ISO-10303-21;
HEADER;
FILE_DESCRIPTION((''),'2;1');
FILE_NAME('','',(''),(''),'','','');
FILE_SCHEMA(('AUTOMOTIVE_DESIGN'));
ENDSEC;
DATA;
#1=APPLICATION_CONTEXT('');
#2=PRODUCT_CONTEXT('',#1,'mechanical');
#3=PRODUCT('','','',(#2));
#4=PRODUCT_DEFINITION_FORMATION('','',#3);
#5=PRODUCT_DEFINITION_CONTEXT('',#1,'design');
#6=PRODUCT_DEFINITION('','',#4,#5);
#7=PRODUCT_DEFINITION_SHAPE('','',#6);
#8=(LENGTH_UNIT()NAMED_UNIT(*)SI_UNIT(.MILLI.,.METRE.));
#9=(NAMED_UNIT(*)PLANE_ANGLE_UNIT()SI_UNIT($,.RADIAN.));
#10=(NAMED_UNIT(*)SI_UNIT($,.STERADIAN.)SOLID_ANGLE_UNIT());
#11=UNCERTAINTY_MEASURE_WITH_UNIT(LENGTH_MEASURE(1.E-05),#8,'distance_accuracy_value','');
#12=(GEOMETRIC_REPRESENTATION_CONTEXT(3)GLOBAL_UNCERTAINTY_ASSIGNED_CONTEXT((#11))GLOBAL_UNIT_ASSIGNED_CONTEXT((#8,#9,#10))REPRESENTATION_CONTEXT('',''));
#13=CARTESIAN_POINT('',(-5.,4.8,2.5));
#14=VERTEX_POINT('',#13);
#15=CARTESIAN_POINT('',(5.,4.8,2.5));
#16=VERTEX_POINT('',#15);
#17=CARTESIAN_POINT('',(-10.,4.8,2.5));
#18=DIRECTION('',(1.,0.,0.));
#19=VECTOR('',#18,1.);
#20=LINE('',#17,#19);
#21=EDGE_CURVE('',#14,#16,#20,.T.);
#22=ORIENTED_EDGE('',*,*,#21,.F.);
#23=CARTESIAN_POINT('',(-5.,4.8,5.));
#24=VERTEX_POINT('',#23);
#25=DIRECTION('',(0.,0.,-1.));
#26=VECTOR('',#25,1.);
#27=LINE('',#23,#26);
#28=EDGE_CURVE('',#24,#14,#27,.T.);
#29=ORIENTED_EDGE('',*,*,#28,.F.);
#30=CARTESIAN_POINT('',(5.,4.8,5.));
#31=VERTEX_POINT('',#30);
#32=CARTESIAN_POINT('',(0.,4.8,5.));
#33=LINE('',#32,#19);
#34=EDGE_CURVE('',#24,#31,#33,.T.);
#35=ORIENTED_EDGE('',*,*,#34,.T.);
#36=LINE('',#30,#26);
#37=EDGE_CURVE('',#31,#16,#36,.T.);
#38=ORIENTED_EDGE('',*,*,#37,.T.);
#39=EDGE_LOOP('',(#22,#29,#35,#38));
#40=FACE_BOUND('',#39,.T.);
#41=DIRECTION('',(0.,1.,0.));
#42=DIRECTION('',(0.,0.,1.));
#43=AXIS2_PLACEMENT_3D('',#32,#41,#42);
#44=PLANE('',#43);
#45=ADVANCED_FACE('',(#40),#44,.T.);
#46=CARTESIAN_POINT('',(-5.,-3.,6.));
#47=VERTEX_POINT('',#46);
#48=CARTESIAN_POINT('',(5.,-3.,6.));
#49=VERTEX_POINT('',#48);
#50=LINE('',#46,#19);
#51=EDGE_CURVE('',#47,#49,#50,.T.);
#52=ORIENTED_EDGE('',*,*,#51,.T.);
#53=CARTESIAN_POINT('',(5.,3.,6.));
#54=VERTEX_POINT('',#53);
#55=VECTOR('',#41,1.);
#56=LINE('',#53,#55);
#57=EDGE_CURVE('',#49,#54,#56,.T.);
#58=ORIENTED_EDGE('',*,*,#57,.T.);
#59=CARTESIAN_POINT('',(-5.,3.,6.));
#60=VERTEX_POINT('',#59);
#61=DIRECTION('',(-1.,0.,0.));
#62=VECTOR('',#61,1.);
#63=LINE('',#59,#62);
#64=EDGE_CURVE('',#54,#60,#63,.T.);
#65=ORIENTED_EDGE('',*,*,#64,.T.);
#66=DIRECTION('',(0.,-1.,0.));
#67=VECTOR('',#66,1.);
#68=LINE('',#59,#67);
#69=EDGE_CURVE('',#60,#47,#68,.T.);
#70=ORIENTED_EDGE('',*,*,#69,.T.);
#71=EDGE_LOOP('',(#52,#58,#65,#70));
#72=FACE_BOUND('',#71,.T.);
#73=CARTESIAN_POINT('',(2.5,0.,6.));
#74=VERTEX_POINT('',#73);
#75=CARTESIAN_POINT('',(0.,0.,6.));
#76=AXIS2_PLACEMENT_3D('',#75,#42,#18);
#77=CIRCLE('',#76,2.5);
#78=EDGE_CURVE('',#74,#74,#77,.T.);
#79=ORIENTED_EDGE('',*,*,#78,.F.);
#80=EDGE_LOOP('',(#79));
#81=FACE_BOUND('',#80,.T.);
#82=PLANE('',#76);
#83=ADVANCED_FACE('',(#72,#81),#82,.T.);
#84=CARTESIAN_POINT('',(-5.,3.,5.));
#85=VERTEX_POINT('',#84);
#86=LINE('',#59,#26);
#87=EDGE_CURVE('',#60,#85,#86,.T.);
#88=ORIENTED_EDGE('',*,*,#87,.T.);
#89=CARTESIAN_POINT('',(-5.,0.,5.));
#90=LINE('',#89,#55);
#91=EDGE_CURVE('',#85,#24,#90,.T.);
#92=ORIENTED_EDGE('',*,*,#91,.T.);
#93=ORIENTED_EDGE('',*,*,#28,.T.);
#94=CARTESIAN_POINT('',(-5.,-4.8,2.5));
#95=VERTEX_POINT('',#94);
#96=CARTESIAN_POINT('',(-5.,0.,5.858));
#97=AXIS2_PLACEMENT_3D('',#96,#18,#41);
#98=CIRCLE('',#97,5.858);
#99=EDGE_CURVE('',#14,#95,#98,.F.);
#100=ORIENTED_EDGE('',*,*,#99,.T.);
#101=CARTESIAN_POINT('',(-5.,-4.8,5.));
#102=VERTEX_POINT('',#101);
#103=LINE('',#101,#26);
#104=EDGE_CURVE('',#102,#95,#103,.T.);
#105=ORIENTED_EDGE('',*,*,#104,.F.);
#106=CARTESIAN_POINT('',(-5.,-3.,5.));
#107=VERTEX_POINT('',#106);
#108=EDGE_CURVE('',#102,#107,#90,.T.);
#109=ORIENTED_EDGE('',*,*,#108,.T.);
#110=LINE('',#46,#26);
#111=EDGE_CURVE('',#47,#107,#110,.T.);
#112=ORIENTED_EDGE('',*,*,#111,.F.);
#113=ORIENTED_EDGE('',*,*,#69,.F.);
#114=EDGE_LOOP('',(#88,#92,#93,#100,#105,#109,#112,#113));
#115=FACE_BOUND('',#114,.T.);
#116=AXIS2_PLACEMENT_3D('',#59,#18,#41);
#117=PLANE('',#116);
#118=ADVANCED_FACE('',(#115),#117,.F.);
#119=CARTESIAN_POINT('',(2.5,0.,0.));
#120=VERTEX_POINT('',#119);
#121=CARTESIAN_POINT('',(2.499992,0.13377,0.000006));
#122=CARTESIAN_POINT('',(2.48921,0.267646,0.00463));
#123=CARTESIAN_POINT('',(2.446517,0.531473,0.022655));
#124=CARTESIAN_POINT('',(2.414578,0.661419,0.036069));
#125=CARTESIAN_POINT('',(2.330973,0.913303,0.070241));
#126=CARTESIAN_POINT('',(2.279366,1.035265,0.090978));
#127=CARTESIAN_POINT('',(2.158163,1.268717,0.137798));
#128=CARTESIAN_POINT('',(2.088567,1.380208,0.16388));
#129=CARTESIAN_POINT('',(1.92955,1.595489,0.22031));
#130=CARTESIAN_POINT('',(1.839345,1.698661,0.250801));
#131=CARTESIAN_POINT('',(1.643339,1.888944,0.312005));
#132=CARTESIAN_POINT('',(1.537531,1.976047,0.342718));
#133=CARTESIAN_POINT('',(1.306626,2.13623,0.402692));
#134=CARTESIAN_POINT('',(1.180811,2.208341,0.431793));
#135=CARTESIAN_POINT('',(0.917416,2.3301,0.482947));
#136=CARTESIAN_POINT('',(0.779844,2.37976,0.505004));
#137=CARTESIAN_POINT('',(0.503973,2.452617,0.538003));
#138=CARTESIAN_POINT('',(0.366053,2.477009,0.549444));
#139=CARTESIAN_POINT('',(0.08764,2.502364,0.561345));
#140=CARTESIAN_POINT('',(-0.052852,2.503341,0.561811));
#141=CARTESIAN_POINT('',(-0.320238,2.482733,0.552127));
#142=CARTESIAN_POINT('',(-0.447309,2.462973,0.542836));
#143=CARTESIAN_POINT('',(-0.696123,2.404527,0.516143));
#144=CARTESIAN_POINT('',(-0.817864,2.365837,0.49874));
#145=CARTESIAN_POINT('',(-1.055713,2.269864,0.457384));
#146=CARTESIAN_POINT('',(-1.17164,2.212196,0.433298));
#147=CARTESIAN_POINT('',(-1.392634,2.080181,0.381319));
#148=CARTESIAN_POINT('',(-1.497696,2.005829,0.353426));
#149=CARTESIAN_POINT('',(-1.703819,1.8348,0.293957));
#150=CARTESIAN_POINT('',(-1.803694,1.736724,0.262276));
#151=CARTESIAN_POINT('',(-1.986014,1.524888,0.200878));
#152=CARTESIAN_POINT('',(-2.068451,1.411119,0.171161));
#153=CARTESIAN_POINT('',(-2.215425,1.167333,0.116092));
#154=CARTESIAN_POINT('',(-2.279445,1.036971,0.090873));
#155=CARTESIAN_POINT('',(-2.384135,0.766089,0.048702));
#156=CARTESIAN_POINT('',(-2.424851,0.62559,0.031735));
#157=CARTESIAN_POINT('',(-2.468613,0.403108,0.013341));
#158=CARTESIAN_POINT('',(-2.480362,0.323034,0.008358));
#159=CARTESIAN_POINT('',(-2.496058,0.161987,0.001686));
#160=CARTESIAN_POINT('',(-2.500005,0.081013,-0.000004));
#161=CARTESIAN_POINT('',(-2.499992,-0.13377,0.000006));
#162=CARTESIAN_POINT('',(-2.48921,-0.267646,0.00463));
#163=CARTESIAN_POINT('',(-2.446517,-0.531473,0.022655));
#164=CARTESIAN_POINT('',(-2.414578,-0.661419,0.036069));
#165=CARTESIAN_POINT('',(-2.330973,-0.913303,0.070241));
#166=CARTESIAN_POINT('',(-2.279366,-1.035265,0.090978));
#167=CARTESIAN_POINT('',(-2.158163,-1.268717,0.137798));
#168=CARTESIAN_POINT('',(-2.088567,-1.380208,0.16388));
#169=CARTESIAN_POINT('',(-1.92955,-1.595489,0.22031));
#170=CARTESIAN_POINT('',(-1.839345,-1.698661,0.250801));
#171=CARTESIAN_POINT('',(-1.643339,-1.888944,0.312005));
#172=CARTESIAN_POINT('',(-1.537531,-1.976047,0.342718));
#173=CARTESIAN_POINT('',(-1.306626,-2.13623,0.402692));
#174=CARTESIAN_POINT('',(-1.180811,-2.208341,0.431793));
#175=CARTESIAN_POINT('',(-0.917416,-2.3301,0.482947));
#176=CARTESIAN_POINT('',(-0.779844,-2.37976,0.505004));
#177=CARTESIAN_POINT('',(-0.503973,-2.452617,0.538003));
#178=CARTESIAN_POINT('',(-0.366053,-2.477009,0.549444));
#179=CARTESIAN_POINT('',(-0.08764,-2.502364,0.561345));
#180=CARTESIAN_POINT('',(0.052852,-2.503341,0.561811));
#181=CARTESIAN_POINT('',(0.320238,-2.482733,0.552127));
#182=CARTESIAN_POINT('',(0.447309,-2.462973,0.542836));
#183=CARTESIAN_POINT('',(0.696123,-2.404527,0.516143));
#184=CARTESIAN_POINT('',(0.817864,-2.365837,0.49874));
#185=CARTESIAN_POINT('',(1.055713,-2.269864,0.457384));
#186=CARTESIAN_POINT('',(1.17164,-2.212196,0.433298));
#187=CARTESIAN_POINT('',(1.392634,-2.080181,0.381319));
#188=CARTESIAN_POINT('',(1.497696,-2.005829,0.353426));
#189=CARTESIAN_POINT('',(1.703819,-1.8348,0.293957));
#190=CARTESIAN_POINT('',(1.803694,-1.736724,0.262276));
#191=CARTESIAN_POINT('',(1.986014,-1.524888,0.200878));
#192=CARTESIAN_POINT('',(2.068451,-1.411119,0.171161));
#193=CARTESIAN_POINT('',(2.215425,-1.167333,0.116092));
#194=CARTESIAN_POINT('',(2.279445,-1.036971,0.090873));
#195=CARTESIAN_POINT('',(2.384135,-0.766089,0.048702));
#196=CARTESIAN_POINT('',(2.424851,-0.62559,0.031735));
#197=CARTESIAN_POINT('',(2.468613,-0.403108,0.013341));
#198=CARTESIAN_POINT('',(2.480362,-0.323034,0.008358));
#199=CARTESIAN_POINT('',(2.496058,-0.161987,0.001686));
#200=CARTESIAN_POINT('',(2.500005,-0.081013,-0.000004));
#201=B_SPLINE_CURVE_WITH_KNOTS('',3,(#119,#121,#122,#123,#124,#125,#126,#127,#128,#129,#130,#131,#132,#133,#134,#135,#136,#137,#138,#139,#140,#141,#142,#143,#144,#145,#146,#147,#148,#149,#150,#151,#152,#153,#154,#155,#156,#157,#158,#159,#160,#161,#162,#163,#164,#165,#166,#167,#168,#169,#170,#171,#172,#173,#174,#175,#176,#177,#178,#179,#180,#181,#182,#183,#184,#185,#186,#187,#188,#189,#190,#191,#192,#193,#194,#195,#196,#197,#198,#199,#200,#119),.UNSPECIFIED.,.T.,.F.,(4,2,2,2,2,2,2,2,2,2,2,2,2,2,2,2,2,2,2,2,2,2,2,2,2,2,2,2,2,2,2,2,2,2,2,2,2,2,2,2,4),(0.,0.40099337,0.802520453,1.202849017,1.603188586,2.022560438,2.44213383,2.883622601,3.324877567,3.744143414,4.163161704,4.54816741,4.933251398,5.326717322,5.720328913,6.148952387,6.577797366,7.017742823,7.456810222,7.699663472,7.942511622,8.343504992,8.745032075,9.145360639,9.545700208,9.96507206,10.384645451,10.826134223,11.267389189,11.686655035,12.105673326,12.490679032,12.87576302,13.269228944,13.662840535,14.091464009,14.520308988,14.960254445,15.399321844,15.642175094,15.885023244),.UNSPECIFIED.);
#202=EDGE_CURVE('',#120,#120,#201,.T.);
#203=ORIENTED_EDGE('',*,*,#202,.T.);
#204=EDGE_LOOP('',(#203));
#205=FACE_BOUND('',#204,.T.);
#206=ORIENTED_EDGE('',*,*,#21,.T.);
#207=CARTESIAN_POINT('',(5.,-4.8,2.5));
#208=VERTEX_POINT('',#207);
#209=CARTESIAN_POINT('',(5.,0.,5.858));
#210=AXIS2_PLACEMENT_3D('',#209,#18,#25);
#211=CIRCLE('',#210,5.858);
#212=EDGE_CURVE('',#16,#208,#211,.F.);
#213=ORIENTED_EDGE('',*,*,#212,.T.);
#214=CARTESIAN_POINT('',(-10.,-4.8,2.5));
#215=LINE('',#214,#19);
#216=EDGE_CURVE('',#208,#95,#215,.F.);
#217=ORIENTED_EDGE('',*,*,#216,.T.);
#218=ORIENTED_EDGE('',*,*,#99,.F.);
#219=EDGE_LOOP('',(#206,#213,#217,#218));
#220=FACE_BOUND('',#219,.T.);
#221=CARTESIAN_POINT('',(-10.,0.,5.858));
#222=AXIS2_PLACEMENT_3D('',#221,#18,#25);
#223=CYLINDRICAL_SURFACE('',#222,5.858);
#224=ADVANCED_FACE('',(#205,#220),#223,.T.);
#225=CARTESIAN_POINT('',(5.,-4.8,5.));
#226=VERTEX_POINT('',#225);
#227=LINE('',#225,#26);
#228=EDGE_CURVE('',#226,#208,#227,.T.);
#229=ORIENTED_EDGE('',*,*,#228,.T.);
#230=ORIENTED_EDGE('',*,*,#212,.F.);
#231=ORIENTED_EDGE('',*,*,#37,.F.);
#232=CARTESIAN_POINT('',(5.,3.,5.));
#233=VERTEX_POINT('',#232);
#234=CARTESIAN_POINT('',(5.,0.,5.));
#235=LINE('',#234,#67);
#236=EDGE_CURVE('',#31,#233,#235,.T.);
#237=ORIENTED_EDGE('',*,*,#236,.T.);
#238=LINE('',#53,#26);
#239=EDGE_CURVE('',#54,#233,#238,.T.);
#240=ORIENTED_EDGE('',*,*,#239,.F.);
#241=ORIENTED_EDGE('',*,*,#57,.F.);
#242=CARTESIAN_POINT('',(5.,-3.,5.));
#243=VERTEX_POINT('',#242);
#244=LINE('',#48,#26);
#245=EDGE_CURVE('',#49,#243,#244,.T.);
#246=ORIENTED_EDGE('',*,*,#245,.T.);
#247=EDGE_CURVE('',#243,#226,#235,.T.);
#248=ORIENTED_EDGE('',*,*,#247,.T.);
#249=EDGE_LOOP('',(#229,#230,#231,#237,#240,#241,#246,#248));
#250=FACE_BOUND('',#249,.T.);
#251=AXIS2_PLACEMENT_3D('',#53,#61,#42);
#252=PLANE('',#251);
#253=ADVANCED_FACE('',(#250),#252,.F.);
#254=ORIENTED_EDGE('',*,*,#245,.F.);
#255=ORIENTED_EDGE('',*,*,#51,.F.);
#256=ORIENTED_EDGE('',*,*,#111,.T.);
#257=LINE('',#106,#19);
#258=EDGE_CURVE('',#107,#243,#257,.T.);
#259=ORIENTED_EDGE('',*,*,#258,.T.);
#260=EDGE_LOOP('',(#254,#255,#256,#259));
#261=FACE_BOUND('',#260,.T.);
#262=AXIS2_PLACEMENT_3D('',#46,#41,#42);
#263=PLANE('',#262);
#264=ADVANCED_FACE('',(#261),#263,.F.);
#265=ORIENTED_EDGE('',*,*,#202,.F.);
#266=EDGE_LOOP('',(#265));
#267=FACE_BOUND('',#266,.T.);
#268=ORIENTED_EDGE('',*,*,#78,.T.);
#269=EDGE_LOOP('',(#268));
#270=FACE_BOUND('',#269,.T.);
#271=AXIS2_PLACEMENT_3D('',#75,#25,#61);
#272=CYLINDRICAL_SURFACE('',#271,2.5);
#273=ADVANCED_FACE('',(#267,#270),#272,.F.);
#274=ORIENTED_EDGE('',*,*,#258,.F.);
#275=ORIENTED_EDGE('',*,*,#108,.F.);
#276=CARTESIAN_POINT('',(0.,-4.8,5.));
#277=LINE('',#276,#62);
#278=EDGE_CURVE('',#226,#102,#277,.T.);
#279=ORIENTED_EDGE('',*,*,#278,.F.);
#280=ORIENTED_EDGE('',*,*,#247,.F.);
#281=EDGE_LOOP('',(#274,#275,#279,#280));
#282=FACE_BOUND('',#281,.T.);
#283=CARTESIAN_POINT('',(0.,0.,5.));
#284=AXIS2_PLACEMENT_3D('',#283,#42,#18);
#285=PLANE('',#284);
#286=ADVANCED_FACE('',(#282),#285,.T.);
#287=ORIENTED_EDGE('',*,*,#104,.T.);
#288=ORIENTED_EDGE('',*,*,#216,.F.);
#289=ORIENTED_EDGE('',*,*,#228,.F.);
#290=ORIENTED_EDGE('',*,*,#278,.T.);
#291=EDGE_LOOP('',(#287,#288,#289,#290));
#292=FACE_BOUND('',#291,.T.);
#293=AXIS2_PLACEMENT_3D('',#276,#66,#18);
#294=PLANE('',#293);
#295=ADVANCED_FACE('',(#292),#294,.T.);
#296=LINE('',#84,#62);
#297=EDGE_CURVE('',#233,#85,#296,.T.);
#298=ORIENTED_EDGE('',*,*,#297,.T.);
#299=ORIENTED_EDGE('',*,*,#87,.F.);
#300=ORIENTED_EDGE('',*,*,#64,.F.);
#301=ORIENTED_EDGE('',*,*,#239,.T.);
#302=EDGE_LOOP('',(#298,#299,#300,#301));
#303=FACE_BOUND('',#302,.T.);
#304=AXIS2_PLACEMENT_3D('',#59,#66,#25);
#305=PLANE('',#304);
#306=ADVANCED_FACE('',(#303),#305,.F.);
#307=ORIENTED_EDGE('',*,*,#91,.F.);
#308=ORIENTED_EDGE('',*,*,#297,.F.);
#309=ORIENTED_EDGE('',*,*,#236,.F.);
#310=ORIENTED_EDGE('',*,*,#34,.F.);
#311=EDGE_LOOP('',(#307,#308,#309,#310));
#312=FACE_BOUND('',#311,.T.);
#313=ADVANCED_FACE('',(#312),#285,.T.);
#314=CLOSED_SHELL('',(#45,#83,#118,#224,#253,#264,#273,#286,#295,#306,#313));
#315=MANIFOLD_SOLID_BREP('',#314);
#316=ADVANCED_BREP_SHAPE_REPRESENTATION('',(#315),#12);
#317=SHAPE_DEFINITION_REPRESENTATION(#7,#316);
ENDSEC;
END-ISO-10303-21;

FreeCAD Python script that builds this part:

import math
import FreeCAD as App
import Part
import Sketcher
Q = App.Units.Quantity


def add_polygon(sketch, points):
    """Adds a closed chain of lines whose ends are joined by coincident constraints."""
    first, n = sketch.GeometryCount, len(points)
    for a, b in zip(points, points[1:] + points[:1]):
        sketch.addGeometry(Part.LineSegment(App.Vector(*a, 0), App.Vector(*b, 0)), False)
    for i in range(n):
        sketch.addConstraint(Sketcher.Constraint("Coincident", first + i, 2, first + (i + 1) % n, 1))

doc = App.newDocument("Part")
body = doc.addObject("PartDesign::Body", "Body")

sketch1 = doc.addObject("Sketcher::SketchObject", "Sketch")
body.addObject(sketch1)
sketch1.AttachmentSupport = (doc.XY_Plane, [""])
sketch1.MapMode = "FlatFace"
add_polygon(sketch1, [(-5, 3), (-5, -3), (5, -3), (5, 3)])
sketch1.addGeometry(Part.Circle(App.Vector(0, 0, 0), App.Vector(0, 0, 1), 2.5), False)
sketch1.addConstraint(Sketcher.Constraint("Vertical", 0))
sketch1.addConstraint(Sketcher.Constraint("Horizontal", 1))
sketch1.addConstraint(Sketcher.Constraint("Vertical", 2))
sketch1.addConstraint(Sketcher.Constraint("Horizontal", 3))
sketch1.addConstraint(Sketcher.Constraint("Coincident", 4, 3, -1, 1))
sketch1.addConstraint(Sketcher.Constraint("Symmetric", 0, 2, 2, 2, -1, 1))
sketch1.addConstraint(Sketcher.Constraint("Diameter", 4, Q("5 mm")))
sketch1.addConstraint(Sketcher.Constraint("DistanceX", 1, 1, 1, 2, Q("10 mm")))
sketch1.addConstraint(Sketcher.Constraint("DistanceY", 0, 2, 0, 1, Q("6 mm")))
pad1 = doc.addObject("PartDesign::Pad", "Pad")
body.addObject(pad1)
pad1.Profile = sketch1
pad1.Length = 6

sketch2 = doc.addObject("Sketcher::SketchObject", "Sketch001")
body.addObject(sketch2)
sketch2.AttachmentSupport = (doc.XY_Plane, [""])
sketch2.MapMode = "FlatFace"
add_polygon(sketch2, [(-5, 4.8), (-5, -4.8), (5, -4.8), (5, 4.8)])
sketch2.addGeometry(Part.Circle(App.Vector(0, 0, 0), App.Vector(0, 0, 1), 2.5), False)
sketch2.addConstraint(Sketcher.Constraint("Vertical", 0))
sketch2.addConstraint(Sketcher.Constraint("Horizontal", 1))
sketch2.addConstraint(Sketcher.Constraint("Vertical", 2))
sketch2.addConstraint(Sketcher.Constraint("Horizontal", 3))
sketch2.addConstraint(Sketcher.Constraint("Coincident", 4, 3, -1, 1))
sketch2.addConstraint(Sketcher.Constraint("Symmetric", 0, 2, 2, 2, -1, 1))
sketch2.addConstraint(Sketcher.Constraint("Diameter", 4, Q("5 mm")))
sketch2.addConstraint(Sketcher.Constraint("DistanceX", 1, 1, 1, 2, Q("10 mm")))
sketch2.addConstraint(Sketcher.Constraint("DistanceY", 0, 2, 0, 1, Q("9.6 mm")))
pad2 = doc.addObject("PartDesign::Pad", "Pad001")
body.addObject(pad2)
pad2.Profile = sketch2
pad2.Length = 5

sketch3 = doc.addObject("Sketcher::SketchObject", "Sketch002")
body.addObject(sketch3)
sketch3.AttachmentSupport = (doc.YZ_Plane, [""])
sketch3.MapMode = "FlatFace"
sketch3.AttachmentOffset = App.Placement(App.Vector(0, 0, 5), App.Rotation())
sketch3.addGeometry(Part.LineSegment(App.Vector(4.8, 0, 0), App.Vector(4.8, 2.5, 0)), False)
sketch3.addGeometry(Part.ArcOfCircle(Part.Circle(App.Vector(0, 5.9, 0), App.Vector(0, 0, 1), 5.9), math.radians(-90), math.radians(-35)), False)
sketch3.addGeometry(Part.LineSegment(App.Vector(0, 0, 0), App.Vector(4.8, 0, 0)), False)
sketch3.addGeometry(Part.LineSegment(App.Vector(-4.8, 0, 0), App.Vector(0, 0, 0)), False)
sketch3.addGeometry(Part.ArcOfCircle(Part.Circle(App.Vector(0, 5.9, 0), App.Vector(0, 0, 1), 5.9), math.radians(-145), math.radians(-90)), False)
sketch3.addGeometry(Part.LineSegment(App.Vector(-4.8, 2.5, 0), App.Vector(-4.8, 0, 0)), False)
sketch3.addConstraint(Sketcher.Constraint("Coincident", 0, 2, 1, 2))
sketch3.addConstraint(Sketcher.Constraint("Tangent", 1, 1, 2, 1))
sketch3.addConstraint(Sketcher.Constraint("Coincident", 2, 2, 0, 1))
sketch3.addConstraint(Sketcher.Constraint("Tangent", 3, 2, 4, 2))
sketch3.addConstraint(Sketcher.Constraint("Coincident", 4, 1, 5, 1))
sketch3.addConstraint(Sketcher.Constraint("Coincident", 5, 2, 3, 1))
sketch3.addConstraint(Sketcher.Constraint("Vertical", 0))
sketch3.addConstraint(Sketcher.Constraint("Horizontal", 2))
sketch3.addConstraint(Sketcher.Constraint("Horizontal", 3))
sketch3.addConstraint(Sketcher.Constraint("Vertical", 5))
sketch3.addConstraint(Sketcher.Constraint("Coincident", 1, 1, -1, 1))
sketch3.addConstraint(Sketcher.Constraint("Coincident", 3, 2, -1, 1))
sketch3.addConstraint(Sketcher.Constraint("Equal", 1, 4))
sketch3.addConstraint(Sketcher.Constraint("Horizontal", 0, 2, 4, 1))
sketch3.addConstraint(Sketcher.Constraint("DistanceX", 2, 1, 2, 2, Q("4.8 mm")))
sketch3.addConstraint(Sketcher.Constraint("DistanceY", 0, 1, 0, 2, Q("2.5 mm")))
pocket1 = doc.addObject("PartDesign::Pocket", "Pocket")
body.addObject(pocket1)
pocket1.Profile = sketch3
pocket1.Length = 15

doc.recompute()
